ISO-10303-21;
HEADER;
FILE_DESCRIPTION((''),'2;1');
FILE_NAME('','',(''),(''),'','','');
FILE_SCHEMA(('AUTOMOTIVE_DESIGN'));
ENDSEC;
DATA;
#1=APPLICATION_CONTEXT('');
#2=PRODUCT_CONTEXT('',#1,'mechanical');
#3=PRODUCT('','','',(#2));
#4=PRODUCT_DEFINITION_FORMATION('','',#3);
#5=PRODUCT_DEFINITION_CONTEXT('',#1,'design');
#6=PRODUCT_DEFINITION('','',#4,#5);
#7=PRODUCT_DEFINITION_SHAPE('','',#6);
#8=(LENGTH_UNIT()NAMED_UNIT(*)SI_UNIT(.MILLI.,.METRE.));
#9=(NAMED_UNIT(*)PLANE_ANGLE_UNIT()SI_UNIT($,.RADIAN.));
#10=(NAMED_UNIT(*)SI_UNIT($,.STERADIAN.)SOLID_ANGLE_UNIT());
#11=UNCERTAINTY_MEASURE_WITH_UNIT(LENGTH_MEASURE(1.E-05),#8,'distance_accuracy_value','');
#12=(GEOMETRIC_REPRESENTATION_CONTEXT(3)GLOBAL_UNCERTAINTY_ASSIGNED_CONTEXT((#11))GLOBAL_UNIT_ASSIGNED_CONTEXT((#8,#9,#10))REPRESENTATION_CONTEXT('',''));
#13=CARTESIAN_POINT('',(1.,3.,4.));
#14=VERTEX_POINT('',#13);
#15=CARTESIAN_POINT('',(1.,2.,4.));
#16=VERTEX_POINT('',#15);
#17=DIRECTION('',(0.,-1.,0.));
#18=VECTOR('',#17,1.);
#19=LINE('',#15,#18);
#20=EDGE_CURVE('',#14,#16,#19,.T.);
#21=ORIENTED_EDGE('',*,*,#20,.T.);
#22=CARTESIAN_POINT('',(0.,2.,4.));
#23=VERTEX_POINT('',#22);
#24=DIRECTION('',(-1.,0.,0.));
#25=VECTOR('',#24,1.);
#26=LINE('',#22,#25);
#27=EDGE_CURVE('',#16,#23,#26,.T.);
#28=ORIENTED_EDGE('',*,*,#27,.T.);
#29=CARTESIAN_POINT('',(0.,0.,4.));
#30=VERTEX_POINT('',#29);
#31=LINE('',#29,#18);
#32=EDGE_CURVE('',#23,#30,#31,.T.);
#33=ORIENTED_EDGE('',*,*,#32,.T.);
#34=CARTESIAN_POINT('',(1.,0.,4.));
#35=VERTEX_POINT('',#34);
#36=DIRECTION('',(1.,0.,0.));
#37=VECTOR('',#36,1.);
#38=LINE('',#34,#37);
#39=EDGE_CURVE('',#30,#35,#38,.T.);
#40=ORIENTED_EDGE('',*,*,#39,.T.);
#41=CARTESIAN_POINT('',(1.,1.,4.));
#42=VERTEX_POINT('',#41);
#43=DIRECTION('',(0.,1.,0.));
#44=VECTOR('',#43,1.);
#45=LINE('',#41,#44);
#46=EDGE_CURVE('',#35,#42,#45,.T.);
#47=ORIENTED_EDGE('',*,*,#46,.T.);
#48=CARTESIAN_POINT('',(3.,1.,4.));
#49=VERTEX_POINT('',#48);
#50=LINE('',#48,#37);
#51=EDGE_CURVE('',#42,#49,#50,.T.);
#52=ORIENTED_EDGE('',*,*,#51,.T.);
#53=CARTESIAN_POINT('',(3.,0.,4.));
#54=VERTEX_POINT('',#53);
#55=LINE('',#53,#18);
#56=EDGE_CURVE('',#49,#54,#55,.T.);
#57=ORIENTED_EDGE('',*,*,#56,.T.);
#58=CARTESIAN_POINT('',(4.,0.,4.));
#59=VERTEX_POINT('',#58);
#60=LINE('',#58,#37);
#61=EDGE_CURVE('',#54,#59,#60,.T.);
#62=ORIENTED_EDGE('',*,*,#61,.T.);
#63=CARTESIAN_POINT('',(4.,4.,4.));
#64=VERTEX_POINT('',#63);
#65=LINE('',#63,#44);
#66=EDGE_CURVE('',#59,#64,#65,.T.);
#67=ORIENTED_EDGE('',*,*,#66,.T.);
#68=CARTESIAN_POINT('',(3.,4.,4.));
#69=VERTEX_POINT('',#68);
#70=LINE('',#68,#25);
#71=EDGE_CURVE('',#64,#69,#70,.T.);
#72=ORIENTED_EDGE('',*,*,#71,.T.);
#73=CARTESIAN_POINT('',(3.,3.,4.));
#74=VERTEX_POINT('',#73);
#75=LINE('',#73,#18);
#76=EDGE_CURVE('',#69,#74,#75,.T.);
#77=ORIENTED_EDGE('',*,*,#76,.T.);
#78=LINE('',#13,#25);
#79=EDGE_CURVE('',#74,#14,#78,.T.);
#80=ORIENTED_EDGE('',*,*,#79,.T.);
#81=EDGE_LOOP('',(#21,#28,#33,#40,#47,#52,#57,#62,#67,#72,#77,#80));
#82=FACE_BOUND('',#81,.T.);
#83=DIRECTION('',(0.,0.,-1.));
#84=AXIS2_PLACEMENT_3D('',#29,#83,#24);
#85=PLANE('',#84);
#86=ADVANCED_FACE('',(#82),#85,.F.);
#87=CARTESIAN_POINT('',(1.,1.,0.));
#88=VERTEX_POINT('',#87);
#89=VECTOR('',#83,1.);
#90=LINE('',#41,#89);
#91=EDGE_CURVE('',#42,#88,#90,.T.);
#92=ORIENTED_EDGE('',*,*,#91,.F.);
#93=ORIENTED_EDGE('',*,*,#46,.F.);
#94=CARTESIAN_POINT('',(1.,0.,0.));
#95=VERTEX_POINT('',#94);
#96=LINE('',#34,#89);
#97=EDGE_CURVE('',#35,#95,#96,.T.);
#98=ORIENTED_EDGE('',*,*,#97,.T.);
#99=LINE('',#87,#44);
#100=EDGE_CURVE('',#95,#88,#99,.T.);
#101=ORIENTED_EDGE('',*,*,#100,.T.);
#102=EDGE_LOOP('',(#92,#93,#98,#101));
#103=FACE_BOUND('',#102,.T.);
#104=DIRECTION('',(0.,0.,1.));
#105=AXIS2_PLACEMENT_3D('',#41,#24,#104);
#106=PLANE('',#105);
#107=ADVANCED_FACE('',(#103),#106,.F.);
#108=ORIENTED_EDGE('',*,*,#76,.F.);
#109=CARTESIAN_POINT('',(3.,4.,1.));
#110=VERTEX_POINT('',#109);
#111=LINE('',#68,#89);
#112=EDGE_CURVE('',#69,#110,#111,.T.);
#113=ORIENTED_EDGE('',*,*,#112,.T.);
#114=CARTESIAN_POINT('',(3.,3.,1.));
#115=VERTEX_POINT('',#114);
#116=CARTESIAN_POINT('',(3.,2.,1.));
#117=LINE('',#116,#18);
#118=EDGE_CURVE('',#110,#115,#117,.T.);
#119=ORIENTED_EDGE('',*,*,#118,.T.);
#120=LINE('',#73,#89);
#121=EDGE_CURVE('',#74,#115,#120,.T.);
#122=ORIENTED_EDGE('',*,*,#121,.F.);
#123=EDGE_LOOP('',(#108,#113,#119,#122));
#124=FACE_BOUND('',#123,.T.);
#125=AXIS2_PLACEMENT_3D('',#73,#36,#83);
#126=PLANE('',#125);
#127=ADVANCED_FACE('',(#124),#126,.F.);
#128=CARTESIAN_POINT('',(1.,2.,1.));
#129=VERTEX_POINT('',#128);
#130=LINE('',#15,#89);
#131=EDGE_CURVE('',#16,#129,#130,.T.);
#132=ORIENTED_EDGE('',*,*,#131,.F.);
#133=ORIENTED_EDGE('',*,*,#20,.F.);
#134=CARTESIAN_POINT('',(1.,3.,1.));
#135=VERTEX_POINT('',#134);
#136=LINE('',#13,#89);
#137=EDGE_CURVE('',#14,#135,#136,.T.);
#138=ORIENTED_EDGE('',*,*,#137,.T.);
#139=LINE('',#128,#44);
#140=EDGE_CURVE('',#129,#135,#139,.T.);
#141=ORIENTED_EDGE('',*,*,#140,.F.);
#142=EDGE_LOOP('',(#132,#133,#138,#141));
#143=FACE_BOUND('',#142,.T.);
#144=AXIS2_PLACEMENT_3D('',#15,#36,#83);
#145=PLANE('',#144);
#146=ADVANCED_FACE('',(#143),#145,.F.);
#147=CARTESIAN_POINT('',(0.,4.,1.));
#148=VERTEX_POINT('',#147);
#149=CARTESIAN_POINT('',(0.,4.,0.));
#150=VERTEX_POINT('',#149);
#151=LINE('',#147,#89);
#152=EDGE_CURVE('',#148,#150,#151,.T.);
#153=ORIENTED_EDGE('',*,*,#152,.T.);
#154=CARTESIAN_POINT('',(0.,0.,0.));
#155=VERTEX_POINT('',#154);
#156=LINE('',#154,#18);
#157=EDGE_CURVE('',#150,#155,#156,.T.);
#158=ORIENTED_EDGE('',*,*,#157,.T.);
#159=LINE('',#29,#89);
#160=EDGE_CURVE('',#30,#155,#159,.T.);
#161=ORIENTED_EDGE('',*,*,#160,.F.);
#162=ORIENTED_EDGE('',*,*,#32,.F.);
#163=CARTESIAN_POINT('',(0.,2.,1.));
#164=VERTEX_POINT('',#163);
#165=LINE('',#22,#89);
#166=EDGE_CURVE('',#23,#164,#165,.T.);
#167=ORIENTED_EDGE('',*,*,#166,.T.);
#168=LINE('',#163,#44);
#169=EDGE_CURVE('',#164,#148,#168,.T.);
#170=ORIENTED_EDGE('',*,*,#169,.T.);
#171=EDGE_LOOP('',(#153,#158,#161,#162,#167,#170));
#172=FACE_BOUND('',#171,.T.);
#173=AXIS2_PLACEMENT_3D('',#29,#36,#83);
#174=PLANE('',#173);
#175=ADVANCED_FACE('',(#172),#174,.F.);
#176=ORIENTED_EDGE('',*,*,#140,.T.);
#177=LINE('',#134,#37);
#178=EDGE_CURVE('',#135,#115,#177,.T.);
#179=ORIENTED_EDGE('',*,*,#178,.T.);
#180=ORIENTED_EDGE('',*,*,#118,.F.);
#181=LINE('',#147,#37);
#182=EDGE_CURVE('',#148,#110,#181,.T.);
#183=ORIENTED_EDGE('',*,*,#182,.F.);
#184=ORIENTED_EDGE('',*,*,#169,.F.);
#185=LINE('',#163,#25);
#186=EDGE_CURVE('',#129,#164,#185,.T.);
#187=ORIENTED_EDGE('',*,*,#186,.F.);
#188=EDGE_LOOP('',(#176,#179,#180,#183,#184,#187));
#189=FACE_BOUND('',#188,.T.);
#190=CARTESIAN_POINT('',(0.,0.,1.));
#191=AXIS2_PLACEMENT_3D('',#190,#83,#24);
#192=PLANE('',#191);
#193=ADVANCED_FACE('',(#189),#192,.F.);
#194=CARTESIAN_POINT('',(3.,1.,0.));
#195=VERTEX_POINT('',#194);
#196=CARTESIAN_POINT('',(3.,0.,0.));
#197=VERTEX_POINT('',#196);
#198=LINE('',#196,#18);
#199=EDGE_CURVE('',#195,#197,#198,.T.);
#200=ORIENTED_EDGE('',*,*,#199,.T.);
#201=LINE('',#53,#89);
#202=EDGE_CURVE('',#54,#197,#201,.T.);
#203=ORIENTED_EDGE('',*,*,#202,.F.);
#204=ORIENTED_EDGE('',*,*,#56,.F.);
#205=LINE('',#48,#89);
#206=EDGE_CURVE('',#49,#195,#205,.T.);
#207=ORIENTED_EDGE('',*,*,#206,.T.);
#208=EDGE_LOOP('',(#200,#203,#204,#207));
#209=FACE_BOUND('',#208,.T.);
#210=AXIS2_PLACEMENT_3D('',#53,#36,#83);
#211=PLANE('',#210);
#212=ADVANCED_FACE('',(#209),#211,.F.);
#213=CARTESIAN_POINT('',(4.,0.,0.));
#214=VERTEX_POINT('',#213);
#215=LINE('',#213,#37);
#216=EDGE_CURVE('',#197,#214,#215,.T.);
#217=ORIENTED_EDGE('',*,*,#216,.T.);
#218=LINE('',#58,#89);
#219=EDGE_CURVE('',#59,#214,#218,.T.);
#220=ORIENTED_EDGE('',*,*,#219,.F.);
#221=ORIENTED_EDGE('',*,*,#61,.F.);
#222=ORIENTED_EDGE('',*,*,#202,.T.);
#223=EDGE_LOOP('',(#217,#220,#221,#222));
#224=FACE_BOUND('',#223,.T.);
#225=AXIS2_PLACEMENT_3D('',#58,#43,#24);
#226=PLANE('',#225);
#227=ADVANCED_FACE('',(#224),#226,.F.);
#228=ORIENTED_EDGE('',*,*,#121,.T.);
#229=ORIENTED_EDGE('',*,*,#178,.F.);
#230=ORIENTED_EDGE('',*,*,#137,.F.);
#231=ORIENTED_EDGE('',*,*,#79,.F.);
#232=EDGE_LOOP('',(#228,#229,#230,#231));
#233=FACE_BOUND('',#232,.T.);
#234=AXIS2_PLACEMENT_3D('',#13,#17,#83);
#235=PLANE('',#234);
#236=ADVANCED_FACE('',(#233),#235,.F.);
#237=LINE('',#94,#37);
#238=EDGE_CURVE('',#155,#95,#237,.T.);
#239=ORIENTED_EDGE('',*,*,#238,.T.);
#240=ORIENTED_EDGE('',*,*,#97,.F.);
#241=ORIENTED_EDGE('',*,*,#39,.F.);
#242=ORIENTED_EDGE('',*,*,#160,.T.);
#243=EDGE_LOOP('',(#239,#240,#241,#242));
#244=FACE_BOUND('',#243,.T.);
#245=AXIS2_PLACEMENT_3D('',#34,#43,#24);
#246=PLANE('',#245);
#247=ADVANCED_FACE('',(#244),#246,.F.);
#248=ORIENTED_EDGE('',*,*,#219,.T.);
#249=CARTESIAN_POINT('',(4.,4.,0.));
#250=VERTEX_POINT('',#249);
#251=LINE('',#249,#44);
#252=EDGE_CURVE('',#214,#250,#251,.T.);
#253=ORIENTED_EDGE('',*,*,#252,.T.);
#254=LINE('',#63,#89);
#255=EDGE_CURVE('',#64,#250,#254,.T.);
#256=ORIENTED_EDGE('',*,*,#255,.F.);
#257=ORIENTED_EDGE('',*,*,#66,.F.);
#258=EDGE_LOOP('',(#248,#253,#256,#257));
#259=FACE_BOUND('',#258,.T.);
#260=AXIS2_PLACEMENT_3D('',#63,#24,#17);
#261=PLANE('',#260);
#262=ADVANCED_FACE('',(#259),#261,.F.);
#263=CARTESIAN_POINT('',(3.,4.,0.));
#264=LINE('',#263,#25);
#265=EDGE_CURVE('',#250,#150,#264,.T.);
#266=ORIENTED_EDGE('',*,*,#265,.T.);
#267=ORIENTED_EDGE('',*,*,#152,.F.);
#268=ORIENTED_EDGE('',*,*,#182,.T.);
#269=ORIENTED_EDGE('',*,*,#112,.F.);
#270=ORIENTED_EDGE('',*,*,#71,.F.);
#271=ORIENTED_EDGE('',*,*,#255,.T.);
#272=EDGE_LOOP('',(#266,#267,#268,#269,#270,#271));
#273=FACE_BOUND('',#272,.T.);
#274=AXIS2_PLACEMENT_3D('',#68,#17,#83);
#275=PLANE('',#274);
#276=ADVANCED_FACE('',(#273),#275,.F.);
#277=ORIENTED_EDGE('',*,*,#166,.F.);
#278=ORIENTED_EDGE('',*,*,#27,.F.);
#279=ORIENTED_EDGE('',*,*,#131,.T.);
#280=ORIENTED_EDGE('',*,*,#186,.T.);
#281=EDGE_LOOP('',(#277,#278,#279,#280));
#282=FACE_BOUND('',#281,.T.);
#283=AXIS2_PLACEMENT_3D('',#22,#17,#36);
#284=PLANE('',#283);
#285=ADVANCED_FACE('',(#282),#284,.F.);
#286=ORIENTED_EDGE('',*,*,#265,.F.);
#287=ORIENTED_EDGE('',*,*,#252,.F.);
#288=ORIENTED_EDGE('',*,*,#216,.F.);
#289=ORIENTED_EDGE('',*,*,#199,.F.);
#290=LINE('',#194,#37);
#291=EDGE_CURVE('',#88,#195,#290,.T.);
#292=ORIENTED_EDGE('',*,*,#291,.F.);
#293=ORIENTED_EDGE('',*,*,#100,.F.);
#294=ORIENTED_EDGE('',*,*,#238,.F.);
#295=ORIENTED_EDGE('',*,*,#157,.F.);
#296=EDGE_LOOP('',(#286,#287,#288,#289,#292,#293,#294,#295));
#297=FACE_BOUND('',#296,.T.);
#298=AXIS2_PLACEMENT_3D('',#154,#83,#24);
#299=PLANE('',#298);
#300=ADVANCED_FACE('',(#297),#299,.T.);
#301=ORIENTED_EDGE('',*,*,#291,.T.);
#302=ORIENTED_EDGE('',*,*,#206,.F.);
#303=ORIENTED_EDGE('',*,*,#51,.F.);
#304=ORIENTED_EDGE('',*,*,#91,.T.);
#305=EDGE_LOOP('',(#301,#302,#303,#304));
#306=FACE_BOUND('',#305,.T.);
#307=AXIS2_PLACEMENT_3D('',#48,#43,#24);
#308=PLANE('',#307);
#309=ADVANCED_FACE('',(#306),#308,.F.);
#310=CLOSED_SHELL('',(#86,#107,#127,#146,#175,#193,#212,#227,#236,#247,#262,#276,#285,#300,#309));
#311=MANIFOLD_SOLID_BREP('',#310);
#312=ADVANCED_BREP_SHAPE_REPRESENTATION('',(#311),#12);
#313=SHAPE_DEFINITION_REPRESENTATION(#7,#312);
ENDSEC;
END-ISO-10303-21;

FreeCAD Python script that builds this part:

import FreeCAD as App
import Part
import Sketcher
from FreeCAD import Vector
Q = App.Units.Quantity


def add_polygon(sketch, points):
    """Adds a closed chain of lines whose ends are joined by coincident constraints."""
    first, n = sketch.GeometryCount, len(points)
    for a, b in zip(points, points[1:] + points[:1]):
        sketch.addGeometry(Part.LineSegment(App.Vector(*a, 0), App.Vector(*b, 0)), False)
    for i in range(n):
        sketch.addConstraint(Sketcher.Constraint("Coincident", first + i, 2, first + (i + 1) % n, 1))

doc = App.newDocument("Part")
params = doc.addObject("Spreadsheet::Sheet", "Params")
for row, (alias, value) in enumerate([
    ("sketch1_width", "1 mm"),
    ("sketch1_width2", "2 mm"),
    ("pad1_length", "4 mm"),
    ("sketch2_width", "3 mm"),
    ("sketch2_height", "2 mm"),
    ("pad2_length", "1 mm"),
], start=1):
    params.set(f"A{row}", alias)
    params.set(f"B{row}", "=" + value)
    params.setAlias(f"B{row}", alias)

body = doc.addObject("PartDesign::Body", "Body")

sketch1 = body.newObject("Sketcher::SketchObject", "Sketch")
sketch1.AttachmentSupport = (doc.getObject("XY_Plane"), [""])
sketch1.MapMode = "FlatFace"
add_polygon(sketch1, [(0, 2), (0, 0), (1, 0), (1, 1), (3, 1), (3, 0), (4, 0), (4, 4), (3, 4), (3, 3), (1, 3), (1, 2)])
sketch1.addConstraint([
    Sketcher.Constraint("Vertical", 0),
    Sketcher.Constraint("Horizontal", 1),
    Sketcher.Constraint("Vertical", 2),
    Sketcher.Constraint("Horizontal", 3),
    Sketcher.Constraint("Vertical", 4),
    Sketcher.Constraint("Horizontal", 5),
    Sketcher.Constraint("Vertical", 6),
    Sketcher.Constraint("Horizontal", 7),
    Sketcher.Constraint("Vertical", 8),
    Sketcher.Constraint("Horizontal", 9),
    Sketcher.Constraint("Vertical", 10),
    Sketcher.Constraint("Horizontal", 11),
    Sketcher.Constraint("Coincident", 0, 2, -1, 1),
    Sketcher.Constraint("PointOnObject", 4, 2, -1),
    Sketcher.Constraint("Vertical", 4, 2, 7, 2),
    Sketcher.Constraint("Vertical", 2, 2, 9, 2),
    Sketcher.Constraint("Equal", 1, 5),
    Sketcher.Constraint("Equal", 9, 0),
    Sketcher.Constraint("Equal", 11, 2),
    Sketcher.Constraint("Equal", 4, 8),
    Sketcher.Constraint("Equal", 8, 10),
    Sketcher.Constraint("DistanceX", 1, 1, 1, 2, Q("1 mm")),
    Sketcher.Constraint("DistanceX", 3, 1, 3, 2, Q("2 mm")),
])
sketch1.setExpression("Constraints[33]", "Params.sketch1_width")
sketch1.setExpression("Constraints[34]", "Params.sketch1_width2")
pad1 = body.newObject("PartDesign::Pad", "Pad")
pad1.Profile = sketch1
pad1.setExpression("Length", "Params.pad1_length")

sketch2 = body.newObject("Sketcher::SketchObject", "Sketch001")
sketch2.AttachmentSupport = (doc.getObject("XY_Plane"), [""])
sketch2.MapMode = "FlatFace"
add_polygon(sketch2, [(3, 4), (3, 2), (0, 2), (0, 4)])
sketch2.addConstraint([
    Sketcher.Constraint("Vertical", 0),
    Sketcher.Constraint("Horizontal", 1),
    Sketcher.Constraint("Vertical", 2),
    Sketcher.Constraint("Horizontal", 3),
    Sketcher.Constraint("PointOnObject", 1, 2, -2),
    Sketcher.Constraint("DistanceX", 1, 2, 1, 1, Q("3 mm")),
    Sketcher.Constraint("DistanceY", 0, 2, 0, 1, Q("2 mm")),
    Sketcher.Constraint("DistanceY", -1, 1, 0, 2, Q("2 mm")),
])
sketch2.setExpression("Constraints[9]", "Params.sketch2_width")
sketch2.setExpression("Constraints[10]", "Params.sketch2_height")
pad2 = body.newObject("PartDesign::Pad", "Pad001")
pad2.Profile = sketch2
pad2.setExpression("Length", "Params.pad2_length")

doc.recompute()
